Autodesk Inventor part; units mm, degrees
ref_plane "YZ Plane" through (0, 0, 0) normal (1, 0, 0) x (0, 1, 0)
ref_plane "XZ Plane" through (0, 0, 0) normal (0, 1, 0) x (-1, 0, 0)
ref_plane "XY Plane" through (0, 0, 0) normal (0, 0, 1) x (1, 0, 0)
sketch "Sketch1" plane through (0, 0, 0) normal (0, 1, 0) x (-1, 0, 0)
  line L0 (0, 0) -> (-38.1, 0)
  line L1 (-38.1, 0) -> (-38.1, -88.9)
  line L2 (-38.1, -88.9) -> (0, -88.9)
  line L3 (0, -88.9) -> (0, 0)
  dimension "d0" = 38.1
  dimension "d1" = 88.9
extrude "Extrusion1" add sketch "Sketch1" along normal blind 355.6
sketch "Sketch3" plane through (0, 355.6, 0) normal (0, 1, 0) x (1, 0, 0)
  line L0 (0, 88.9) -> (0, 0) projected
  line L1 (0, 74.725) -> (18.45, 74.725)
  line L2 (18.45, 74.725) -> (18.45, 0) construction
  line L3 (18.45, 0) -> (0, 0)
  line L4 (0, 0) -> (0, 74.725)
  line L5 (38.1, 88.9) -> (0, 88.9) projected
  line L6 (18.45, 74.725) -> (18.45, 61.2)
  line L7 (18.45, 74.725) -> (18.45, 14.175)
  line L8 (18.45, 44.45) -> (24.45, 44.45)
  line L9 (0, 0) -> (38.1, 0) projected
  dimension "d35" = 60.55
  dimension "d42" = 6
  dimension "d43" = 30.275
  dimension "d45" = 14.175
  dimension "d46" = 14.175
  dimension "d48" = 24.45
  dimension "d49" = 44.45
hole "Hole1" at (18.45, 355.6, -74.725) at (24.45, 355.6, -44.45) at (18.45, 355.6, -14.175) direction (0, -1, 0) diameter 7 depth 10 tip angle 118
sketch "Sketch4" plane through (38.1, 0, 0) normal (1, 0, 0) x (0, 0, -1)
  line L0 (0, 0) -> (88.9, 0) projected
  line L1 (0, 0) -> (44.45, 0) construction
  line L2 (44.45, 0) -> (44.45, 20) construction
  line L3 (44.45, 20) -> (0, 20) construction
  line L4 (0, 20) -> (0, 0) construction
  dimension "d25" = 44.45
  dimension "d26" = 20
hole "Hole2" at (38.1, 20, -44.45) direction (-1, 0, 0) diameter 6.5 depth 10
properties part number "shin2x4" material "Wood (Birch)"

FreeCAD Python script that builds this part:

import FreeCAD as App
import Part
import Sketcher
Q = App.Units.Quantity

doc = App.newDocument("Part")
body = doc.addObject("PartDesign::Body", "Body")

# Sketch on XZ plane
sketch1 = doc.addObject("Sketcher::SketchObject", "Sketch")
body.addObject(sketch1)
sketch1.AttachmentSupport = (doc.XZ_Plane, [""])
sketch1.MapMode = "FlatFace"
sketch1.addGeometry([
    Part.LineSegment(App.Vector(0, -89, 0), App.Vector(0, 0, 0)),
    Part.LineSegment(App.Vector(0, 0, 0), App.Vector(38, 0, 0)),
    Part.LineSegment(App.Vector(38, 0, 0), App.Vector(38, -89, 0)),
    Part.LineSegment(App.Vector(38, -89, 0), App.Vector(0, -89, 0)),
], False)
sketch1.addConstraint([
    Sketcher.Constraint("Coincident", 0, 2, 1, 1),
    Sketcher.Constraint("Coincident", 1, 2, 2, 1),
    Sketcher.Constraint("Coincident", 2, 2, 3, 1),
    Sketcher.Constraint("Coincident", 3, 2, 0, 1),
    Sketcher.Constraint("Vertical", 0),
    Sketcher.Constraint("Horizontal", 1),
    Sketcher.Constraint("Vertical", 2),
    Sketcher.Constraint("Horizontal", 3),
    Sketcher.Constraint("Coincident", 0, 2, -1, 1),
    Sketcher.Constraint("DistanceX", 1, 1, 1, 2, Q("1.5 in")),
    Sketcher.Constraint("DistanceY", 0, 1, 0, 2, Q("3.5 in")),
])
pad1 = doc.addObject("PartDesign::Pad", "Pad")
body.addObject(pad1)
pad1.Profile = sketch1
pad1.Length = Q("14 in")
pad1.Reversed = True

# Sketch on XZ plane
sketch2 = doc.addObject("Sketcher::SketchObject", "Sketch001")
body.addObject(sketch2)
sketch2.AttachmentSupport = (doc.XZ_Plane, [""])
sketch2.MapMode = "FlatFace"
sketch2.AttachmentOffset = App.Placement(App.Vector(0, 0, -14 * 25.4), App.Rotation())
sketch2.addGeometry([
    Part.Circle(App.Vector(18.4, -74.7, 0), App.Vector(0, 0, 1), 3.5),
    Part.Circle(App.Vector(24.4, -44.5, 0), App.Vector(0, 0, 1), 3.5),
    Part.Circle(App.Vector(18.4, -14.2, 0), App.Vector(0, 0, 1), 3.5),
], False)
sketch2.addConstraint([
    Sketcher.Constraint("Equal", 0, 1),
    Sketcher.Constraint("Equal", 1, 2),
    Sketcher.Constraint("Vertical", 0, 3, 2, 3),
    Sketcher.Constraint("Diameter", 0, Q("0.2756 in")),
    Sketcher.Constraint("DistanceY", 1, 3, -1, 1, Q("1.75 in")),
    Sketcher.Constraint("DistanceX", -1, 1, 1, 3, Q("0.9626 in")),
    Sketcher.Constraint("DistanceX", -1, 1, 0, 3, 18.45),
    Sketcher.Constraint("DistanceY", 0, 3, -1, 1, 74.725),
    Sketcher.Constraint("DistanceY", 2, 3, -1, 1, 14.175),
])
doc.recompute()
hole = doc.addObject("PartDesign::Hole", "Hole")
body.addObject(hole)
hole.Profile = sketch2
hole.ThreadType = "None"
hole.Diameter = Q("0.2755906 in")
hole.DepthType = "Dimension"
hole.Depth = Q("0.3937008 in")
hole.DrillPoint = "Angled"
hole.DrillPointAngle = 118
hole.Reversed = True

# Sketch on YZ plane
sketch3 = doc.addObject("Sketcher::SketchObject", "Sketch002")
body.addObject(sketch3)
sketch3.AttachmentSupport = (doc.YZ_Plane, [""])
sketch3.MapMode = "FlatFace"
sketch3.AttachmentOffset = App.Placement(App.Vector(0, 0, 1.5 * 25.4), App.Rotation())
sketch3.addGeometry(Part.Circle(App.Vector(20, -44.5, 0), App.Vector(0, 0, 1), 3.2), False)
sketch3.addConstraint([
    Sketcher.Constraint("Diameter", 0, Q("0.2559 in")),
    Sketcher.Constraint("DistanceY", 0, 3, -1, 1, Q("1.75 in")),
    Sketcher.Constraint("DistanceX", -1, 1, 0, 3, Q("0.7874 in")),
])
doc.recompute()
hole2 = doc.addObject("PartDesign::Hole", "Hole001")
body.addObject(hole2)
hole2.Profile = sketch3
hole2.ThreadType = "None"
hole2.Diameter = Q("0.2559055 in")
hole2.DepthType = "Dimension"
hole2.Depth = Q("0.3937008 in")
hole2.DrillPoint = "Flat"

doc.recompute()
